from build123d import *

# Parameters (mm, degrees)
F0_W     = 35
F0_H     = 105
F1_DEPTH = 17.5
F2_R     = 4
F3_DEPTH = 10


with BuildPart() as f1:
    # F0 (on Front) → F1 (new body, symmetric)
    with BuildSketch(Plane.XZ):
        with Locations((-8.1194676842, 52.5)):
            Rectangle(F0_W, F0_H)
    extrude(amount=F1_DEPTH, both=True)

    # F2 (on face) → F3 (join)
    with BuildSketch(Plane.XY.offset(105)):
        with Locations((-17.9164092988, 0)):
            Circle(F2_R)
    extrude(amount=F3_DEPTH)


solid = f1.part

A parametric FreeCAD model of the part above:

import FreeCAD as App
import Part
import Sketcher

V = App.Vector


def add_polygon(sketch, points):
    """Adds a closed chain of lines whose ends are joined by coincident constraints."""
    first, n = sketch.GeometryCount, len(points)
    for a, b in zip(points, points[1:] + points[:1]):
        sketch.addGeometry(Part.LineSegment(App.Vector(*a, 0), App.Vector(*b, 0)), False)
    for i in range(n):
        sketch.addConstraint(Sketcher.Constraint("Coincident", first + i, 2, first + (i + 1) % n, 1))

doc = App.newDocument("Part")
body = doc.addObject("PartDesign::Body", "Body")

sketch1 = body.newObject("Sketcher::SketchObject", "Sketch")
sketch1.AttachmentSupport = (doc.getObject("XZ_Plane"), [""])
sketch1.MapMode = "FlatFace"
add_polygon(sketch1, [(-26, 105), (-26, 0), (9, 0), (9, 105)])
sketch1.addConstraint(Sketcher.Constraint("Vertical", 0))
sketch1.addConstraint(Sketcher.Constraint("Horizontal", 1))
sketch1.addConstraint(Sketcher.Constraint("Vertical", 2))
sketch1.addConstraint(Sketcher.Constraint("Horizontal", 3))
sketch1.addConstraint(Sketcher.Constraint("PointOnObject", 0, 2, -1))
sketch1.addConstraint(Sketcher.Constraint("DistanceX", 1, 1, 1, 2, 35.0))
sketch1.addConstraint(Sketcher.Constraint("DistanceY", 0, 2, 0, 1, 105.0))
sketch1.addConstraint(Sketcher.Constraint("DistanceX", 0, 2, -1, 1, 25.619468))
pad1 = body.newObject("PartDesign::Pad", "Pad")
pad1.Profile = sketch1
pad1.Length = 35
pad1.Midplane = True

sketch2 = body.newObject("Sketcher::SketchObject", "Sketch001")
sketch2.AttachmentSupport = (doc.getObject("XY_Plane"), [""])
sketch2.MapMode = "FlatFace"
sketch2.AttachmentOffset = App.Placement(V(0, 0, 105), App.Rotation())
sketch2.addGeometry(Part.Circle(V(-17.9, 0, 0), V(0, 0, 1), 4), False)
sketch2.addConstraint(Sketcher.Constraint("PointOnObject", 0, 3, -1))
sketch2.addConstraint(Sketcher.Constraint("Diameter", 0, 8.0))
sketch2.addConstraint(Sketcher.Constraint("DistanceX", 0, 3, -1, 1, 17.916409))
pad2 = body.newObject("PartDesign::Pad", "Pad001")
pad2.Profile = sketch2
pad2.Length = 10

doc.recompute()
